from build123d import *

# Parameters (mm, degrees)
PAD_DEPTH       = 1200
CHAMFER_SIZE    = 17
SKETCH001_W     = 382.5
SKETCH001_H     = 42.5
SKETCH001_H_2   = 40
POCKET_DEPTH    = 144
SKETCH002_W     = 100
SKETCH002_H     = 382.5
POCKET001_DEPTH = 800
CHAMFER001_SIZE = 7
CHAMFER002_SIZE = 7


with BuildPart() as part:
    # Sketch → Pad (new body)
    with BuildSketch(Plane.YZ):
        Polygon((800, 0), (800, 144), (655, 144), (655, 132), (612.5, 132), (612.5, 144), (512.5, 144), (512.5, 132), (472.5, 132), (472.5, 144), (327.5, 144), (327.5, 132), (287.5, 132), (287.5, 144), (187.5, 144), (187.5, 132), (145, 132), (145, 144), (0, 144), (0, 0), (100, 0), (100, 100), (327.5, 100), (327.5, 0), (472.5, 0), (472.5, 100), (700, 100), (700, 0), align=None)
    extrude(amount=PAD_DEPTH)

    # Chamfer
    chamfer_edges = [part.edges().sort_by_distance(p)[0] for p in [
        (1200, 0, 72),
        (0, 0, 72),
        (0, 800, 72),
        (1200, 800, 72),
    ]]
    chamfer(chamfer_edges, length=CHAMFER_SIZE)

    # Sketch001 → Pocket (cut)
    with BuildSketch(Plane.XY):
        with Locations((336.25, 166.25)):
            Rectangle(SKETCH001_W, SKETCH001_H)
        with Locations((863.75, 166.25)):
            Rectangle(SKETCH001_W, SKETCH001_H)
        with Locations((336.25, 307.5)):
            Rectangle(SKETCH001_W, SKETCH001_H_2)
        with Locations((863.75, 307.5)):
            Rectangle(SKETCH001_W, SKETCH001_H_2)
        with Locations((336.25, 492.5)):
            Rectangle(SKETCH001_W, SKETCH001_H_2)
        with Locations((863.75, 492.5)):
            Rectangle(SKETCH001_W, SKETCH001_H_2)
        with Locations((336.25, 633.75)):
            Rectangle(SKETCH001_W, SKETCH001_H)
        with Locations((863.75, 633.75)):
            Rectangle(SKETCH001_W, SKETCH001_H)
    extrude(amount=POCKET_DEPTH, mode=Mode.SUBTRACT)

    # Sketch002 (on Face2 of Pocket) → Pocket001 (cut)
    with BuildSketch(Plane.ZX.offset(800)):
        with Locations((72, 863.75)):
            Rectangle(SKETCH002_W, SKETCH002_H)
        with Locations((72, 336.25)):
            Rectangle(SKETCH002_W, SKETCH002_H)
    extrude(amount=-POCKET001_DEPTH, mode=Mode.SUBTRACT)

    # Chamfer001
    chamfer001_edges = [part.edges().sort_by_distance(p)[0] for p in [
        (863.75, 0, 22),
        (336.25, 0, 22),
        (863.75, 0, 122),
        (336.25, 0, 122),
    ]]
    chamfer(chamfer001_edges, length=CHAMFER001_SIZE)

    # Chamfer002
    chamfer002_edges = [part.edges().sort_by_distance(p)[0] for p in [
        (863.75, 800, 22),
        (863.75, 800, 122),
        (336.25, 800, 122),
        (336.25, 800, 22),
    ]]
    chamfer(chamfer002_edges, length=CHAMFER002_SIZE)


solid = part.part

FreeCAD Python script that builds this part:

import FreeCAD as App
import Part
import Sketcher
Q = App.Units.Quantity


def edges_at(feature, points):
    """Names of the edges that pass closest to the given points."""
    edges = feature.Shape.Edges
    near = lambda p: min(range(len(edges)), key=lambda i: edges[i].distToShape(Part.Vertex(*p))[0])
    return sorted({f"Edge{near(p) + 1}" for p in points})

doc = App.newDocument("Part")
body = doc.addObject("PartDesign::Body", "Body")

# Sketch on YZ plane
sketch1 = body.newObject("Sketcher::SketchObject", "Sketch")
sketch1.AttachmentSupport = (doc.getObject("YZ_Plane"), [""])
sketch1.MapMode = "FlatFace"
sketch1.addGeometry([
    Part.LineSegment(App.Vector(800, 0, 0), App.Vector(800, 144, 0)),  # 0
    Part.LineSegment(App.Vector(800, 144, 0), App.Vector(655, 144, 0)),  # 1
    Part.LineSegment(App.Vector(655, 144, 0), App.Vector(655, 132, 0)),  # 2
    Part.LineSegment(App.Vector(655, 132, 0), App.Vector(612, 132, 0)),  # 3
    Part.LineSegment(App.Vector(612, 132, 0), App.Vector(612, 144, 0)),  # 4
    Part.LineSegment(App.Vector(612, 144, 0), App.Vector(512, 144, 0)),  # 5
    Part.LineSegment(App.Vector(512, 144, 0), App.Vector(512, 132, 0)),  # 6
    Part.LineSegment(App.Vector(512, 132, 0), App.Vector(472, 132, 0)),  # 7
    Part.LineSegment(App.Vector(472, 132, 0), App.Vector(472, 144, 0)),  # 8
    Part.LineSegment(App.Vector(472, 144, 0), App.Vector(328, 144, 0)),  # 9
    Part.LineSegment(App.Vector(328, 144, 0), App.Vector(328, 132, 0)),  # 10
    Part.LineSegment(App.Vector(328, 132, 0), App.Vector(288, 132, 0)),  # 11
    Part.LineSegment(App.Vector(288, 132, 0), App.Vector(288, 144, 0)),  # 12
    Part.LineSegment(App.Vector(288, 144, 0), App.Vector(188, 144, 0)),  # 13
    Part.LineSegment(App.Vector(188, 144, 0), App.Vector(188, 132, 0)),  # 14
    Part.LineSegment(App.Vector(188, 132, 0), App.Vector(145, 132, 0)),  # 15
    Part.LineSegment(App.Vector(145, 132, 0), App.Vector(145, 144, 0)),  # 16
    Part.LineSegment(App.Vector(145, 144, 0), App.Vector(0, 144, 0)),  # 17
    Part.LineSegment(App.Vector(0, 144, 0), App.Vector(0, 0, 0)),  # 18
    Part.LineSegment(App.Vector(0, 0, 0), App.Vector(100, 0, 0)),  # 19
    Part.LineSegment(App.Vector(100, 0, 0), App.Vector(100, 100, 0)),  # 20
    Part.LineSegment(App.Vector(100, 100, 0), App.Vector(328, 100, 0)),  # 21
    Part.LineSegment(App.Vector(328, 100, 0), App.Vector(328, 0, 0)),  # 22
    Part.LineSegment(App.Vector(328, 0, 0), App.Vector(472, 0, 0)),  # 23
    Part.LineSegment(App.Vector(472, 0, 0), App.Vector(472, 100, 0)),  # 24
    Part.LineSegment(App.Vector(472, 100, 0), App.Vector(700, 100, 0)),  # 25
    Part.LineSegment(App.Vector(700, 100, 0), App.Vector(700, 0, 0)),  # 26
    Part.LineSegment(App.Vector(700, 0, 0), App.Vector(800, 0, 0)),  # 27
], False)
sketch1.addConstraint([
    Sketcher.Constraint("Coincident", 0, 2, 1, 1),
    Sketcher.Constraint("Coincident", 1, 2, 2, 1),
    Sketcher.Constraint("Coincident", 2, 2, 3, 1),
    Sketcher.Constraint("Coincident", 3, 2, 4, 1),
    Sketcher.Constraint("Coincident", 4, 2, 5, 1),
    Sketcher.Constraint("Coincident", 5, 2, 6, 1),
    Sketcher.Constraint("Coincident", 6, 2, 7, 1),
    Sketcher.Constraint("Coincident", 7, 2, 8, 1),
    Sketcher.Constraint("Coincident", 8, 2, 9, 1),
    Sketcher.Constraint("Coincident", 9, 2, 10, 1),
    Sketcher.Constraint("Coincident", 10, 2, 11, 1),
    Sketcher.Constraint("Coincident", 11, 2, 12, 1),
    Sketcher.Constraint("Coincident", 12, 2, 13, 1),
    Sketcher.Constraint("Coincident", 13, 2, 14, 1),
    Sketcher.Constraint("Coincident", 14, 2, 15, 1),
    Sketcher.Constraint("Coincident", 15, 2, 16, 1),
    Sketcher.Constraint("Coincident", 16, 2, 17, 1),
    Sketcher.Constraint("Coincident", 17, 2, 18, 1),
    Sketcher.Constraint("Coincident", 18, 2, 19, 1),
    Sketcher.Constraint("Coincident", 19, 2, 20, 1),
    Sketcher.Constraint("Coincident", 20, 2, 21, 1),
    Sketcher.Constraint("Coincident", 21, 2, 22, 1),
    Sketcher.Constraint("Coincident", 22, 2, 23, 1),
    Sketcher.Constraint("Coincident", 23, 2, 24, 1),
    Sketcher.Constraint("Coincident", 24, 2, 25, 1),
    Sketcher.Constraint("Coincident", 25, 2, 26, 1),
    Sketcher.Constraint("Coincident", 26, 2, 27, 1),
    Sketcher.Constraint("Coincident", 27, 2, 0, 1),
    Sketcher.Constraint("Vertical", 0),
    Sketcher.Constraint("Horizontal", 1),
    Sketcher.Constraint("Vertical", 2),
    Sketcher.Constraint("Horizontal", 3),
    Sketcher.Constraint("Vertical", 4),
    Sketcher.Constraint("Horizontal", 5),
    Sketcher.Constraint("Vertical", 6),
    Sketcher.Constraint("Horizontal", 7),
    Sketcher.Constraint("Vertical", 8),
    Sketcher.Constraint("Horizontal", 9),
    Sketcher.Constraint("Vertical", 10),
    Sketcher.Constraint("Horizontal", 11),
    Sketcher.Constraint("Vertical", 12),
    Sketcher.Constraint("Horizontal", 13),
    Sketcher.Constraint("Vertical", 14),
    Sketcher.Constraint("Horizontal", 15),
    Sketcher.Constraint("Vertical", 16),
    Sketcher.Constraint("Horizontal", 17),
    Sketcher.Constraint("Vertical", 18),
    Sketcher.Constraint("Horizontal", 19),
    Sketcher.Constraint("Vertical", 20),
    Sketcher.Constraint("Horizontal", 21),
    Sketcher.Constraint("Vertical", 22),
    Sketcher.Constraint("Horizontal", 23),
    Sketcher.Constraint("Vertical", 24),
    Sketcher.Constraint("Horizontal", 25),
    Sketcher.Constraint("Vertical", 26),
    Sketcher.Constraint("Horizontal", 27),
    Sketcher.Constraint("Coincident", 18, 2, -1, 1),
    Sketcher.Constraint("PointOnObject", 22, 2, -1),
    Sketcher.Constraint("PointOnObject", 26, 2, -1),
    Sketcher.Constraint("Horizontal", 1, 2, 4, 2),
    Sketcher.Constraint("Horizontal", 3, 2, 6, 2),
    Sketcher.Constraint("Horizontal", 5, 2, 8, 2),
    Sketcher.Constraint("Horizontal", 7, 2, 10, 2),
    Sketcher.Constraint("Horizontal", 9, 2, 12, 2),
    Sketcher.Constraint("Horizontal", 11, 2, 14, 2),
    Sketcher.Constraint("Horizontal", 13, 2, 16, 2),
    Sketcher.Constraint("Horizontal", 21, 2, 24, 2),
    Sketcher.Constraint("Vertical", 10, 2, 21, 2),
    Sketcher.Constraint("Vertical", 8, 2, 23, 2),
    Sketcher.Constraint("Equal", 1, 9),
    Sketcher.Constraint("Equal", 7, 11),
    Sketcher.Constraint("Equal", 5, 13),
    Sketcher.Constraint("Equal", 3, 15),
    Sketcher.Constraint("Equal", 9, 17),
    Sketcher.Constraint("Equal", 13, 19),
    Sketcher.Constraint("Equal", 21, 25),
    Sketcher.Constraint("Equal", 27, 20),
    Sketcher.Constraint("DistanceX", 1, 2, 1, 1, Q("145 mm")),
    Sketcher.Constraint("DistanceX", 5, 2, 5, 1, Q("100 mm")),
    Sketcher.Constraint("DistanceX", 7, 2, 7, 1, Q("40 mm")),
    Sketcher.Constraint("DistanceY", 0, 1, 0, 2, Q("144 mm")),
    Sketcher.Constraint("DistanceY", 2, 2, 2, 1, Q("12 mm")),
    Sketcher.Constraint("DistanceX", 3, 2, 3, 1, Q("42.5 mm")),
])
pad1 = body.newObject("PartDesign::Pad", "Pad")
pad1.Profile = sketch1
pad1.Length = 1200
doc.recompute()

chamfer = body.newObject("PartDesign::Chamfer", "Chamfer")
chamfer.Base = (pad1, edges_at(pad1, [
    (1200, 0, 72),
    (0, 0, 72),
    (0, 800, 72),
    (1200, 800, 72),
]))
chamfer.Size = 17

# Sketch on XY plane
sketch2 = body.newObject("Sketcher::SketchObject", "Sketch001")
sketch2.AttachmentSupport = (doc.getObject("XY_Plane"), [""])
sketch2.MapMode = "FlatFace"
sketch2.addGeometry([
    Part.LineSegment(App.Vector(145, 188, 0), App.Vector(145, 145, 0)),  # 0
    Part.LineSegment(App.Vector(145, 145, 0), App.Vector(528, 145, 0)),  # 1
    Part.LineSegment(App.Vector(528, 145, 0), App.Vector(528, 188, 0)),  # 2
    Part.LineSegment(App.Vector(528, 188, 0), App.Vector(145, 188, 0)),  # 3
    Part.LineSegment(App.Vector(672, 188, 0), App.Vector(672, 145, 0)),  # 4
    Part.LineSegment(App.Vector(672, 145, 0), App.Vector(1055, 145, 0)),  # 5
    Part.LineSegment(App.Vector(1055, 145, 0), App.Vector(1055, 188, 0)),  # 6
    Part.LineSegment(App.Vector(1055, 188, 0), App.Vector(672, 188, 0)),  # 7
    Part.LineSegment(App.Vector(145, 328, 0), App.Vector(145, 288, 0)),  # 8
    Part.LineSegment(App.Vector(145, 288, 0), App.Vector(528, 288, 0)),  # 9
    Part.LineSegment(App.Vector(528, 288, 0), App.Vector(528, 328, 0)),  # 10
    Part.LineSegment(App.Vector(528, 328, 0), App.Vector(145, 328, 0)),  # 11
    Part.LineSegment(App.Vector(672, 328, 0), App.Vector(672, 288, 0)),  # 12
    Part.LineSegment(App.Vector(672, 288, 0), App.Vector(1055, 288, 0)),  # 13
    Part.LineSegment(App.Vector(1055, 288, 0), App.Vector(1055, 328, 0)),  # 14
    Part.LineSegment(App.Vector(1055, 328, 0), App.Vector(672, 328, 0)),  # 15
    Part.LineSegment(App.Vector(145, 512, 0), App.Vector(145, 472, 0)),  # 16
    Part.LineSegment(App.Vector(145, 472, 0), App.Vector(528, 472, 0)),  # 17
    Part.LineSegment(App.Vector(528, 472, 0), App.Vector(528, 512, 0)),  # 18
    Part.LineSegment(App.Vector(528, 512, 0), App.Vector(145, 512, 0)),  # 19
    Part.LineSegment(App.Vector(672, 512, 0), App.Vector(672, 472, 0)),  # 20
    Part.LineSegment(App.Vector(672, 472, 0), App.Vector(1055, 472, 0)),  # 21
    Part.LineSegment(App.Vector(1055, 472, 0), App.Vector(1055, 512, 0)),  # 22
    Part.LineSegment(App.Vector(1055, 512, 0), App.Vector(672, 512, 0)),  # 23
    Part.LineSegment(App.Vector(145, 655, 0), App.Vector(145, 612, 0)),  # 24
    Part.LineSegment(App.Vector(145, 612, 0), App.Vector(528, 612, 0)),  # 25
    Part.LineSegment(App.Vector(528, 612, 0), App.Vector(528, 655, 0)),  # 26
    Part.LineSegment(App.Vector(528, 655, 0), App.Vector(145, 655, 0)),  # 27
    Part.LineSegment(App.Vector(672, 655, 0), App.Vector(672, 612, 0)),  # 28
    Part.LineSegment(App.Vector(672, 612, 0), App.Vector(1055, 612, 0)),  # 29
    Part.LineSegment(App.Vector(1055, 612, 0), App.Vector(1055, 655, 0)),  # 30
    Part.LineSegment(App.Vector(1055, 655, 0), App.Vector(672, 655, 0)),  # 31
], False)
sketch2.addConstraint([
    Sketcher.Constraint("Coincident", 0, 2, 1, 1),
    Sketcher.Constraint("Coincident", 1, 2, 2, 1),
    Sketcher.Constraint("Coincident", 2, 2, 3, 1),
    Sketcher.Constraint("Coincident", 3, 2, 0, 1),
    Sketcher.Constraint("Coincident", 4, 2, 5, 1),
    Sketcher.Constraint("Coincident", 5, 2, 6, 1),
    Sketcher.Constraint("Coincident", 6, 2, 7, 1),
    Sketcher.Constraint("Coincident", 7, 2, 4, 1),
    Sketcher.Constraint("Coincident", 8, 2, 9, 1),
    Sketcher.Constraint("Coincident", 9, 2, 10, 1),
    Sketcher.Constraint("Coincident", 10, 2, 11, 1),
    Sketcher.Constraint("Coincident", 11, 2, 8, 1),
    Sketcher.Constraint("Coincident", 12, 2, 13, 1),
    Sketcher.Constraint("Coincident", 13, 2, 14, 1),
    Sketcher.Constraint("Coincident", 14, 2, 15, 1),
    Sketcher.Constraint("Coincident", 15, 2, 12, 1),
    Sketcher.Constraint("Coincident", 16, 2, 17, 1),
    Sketcher.Constraint("Coincident", 17, 2, 18, 1),
    Sketcher.Constraint("Coincident", 18, 2, 19, 1),
    Sketcher.Constraint("Coincident", 19, 2, 16, 1),
    Sketcher.Constraint("Coincident", 20, 2, 21, 1),
    Sketcher.Constraint("Coincident", 21, 2, 22, 1),
    Sketcher.Constraint("Coincident", 22, 2, 23, 1),
    Sketcher.Constraint("Coincident", 23, 2, 20, 1),
    Sketcher.Constraint("Coincident", 24, 2, 25, 1),
    Sketcher.Constraint("Coincident", 25, 2, 26, 1),
    Sketcher.Constraint("Coincident", 26, 2, 27, 1),
    Sketcher.Constraint("Coincident", 27, 2, 24, 1),
    Sketcher.Constraint("Coincident", 28, 2, 29, 1),
    Sketcher.Constraint("Coincident", 29, 2, 30, 1),
    Sketcher.Constraint("Coincident", 30, 2, 31, 1),
    Sketcher.Constraint("Coincident", 31, 2, 28, 1),
    Sketcher.Constraint("Vertical", 0),
    Sketcher.Constraint("Horizontal", 1),
    Sketcher.Constraint("Vertical", 2),
    Sketcher.Constraint("Horizontal", 3),
    Sketcher.Constraint("Vertical", 4),
    Sketcher.Constraint("Horizontal", 5),
    Sketcher.Constraint("Vertical", 6),
    Sketcher.Constraint("Horizontal", 7),
    Sketcher.Constraint("Vertical", 8),
    Sketcher.Constraint("Horizontal", 9),
    Sketcher.Constraint("Vertical", 10),
    Sketcher.Constraint("Horizontal", 11),
    Sketcher.Constraint("Vertical", 12),
    Sketcher.Constraint("Horizontal", 13),
    Sketcher.Constraint("Vertical", 14),
    Sketcher.Constraint("Horizontal", 15),
    Sketcher.Constraint("Vertical", 16),
    Sketcher.Constraint("Horizontal", 17),
    Sketcher.Constraint("Vertical", 18),
    Sketcher.Constraint("Horizontal", 19),
    Sketcher.Constraint("Vertical", 20),
    Sketcher.Constraint("Horizontal", 21),
    Sketcher.Constraint("Vertical", 22),
    Sketcher.Constraint("Horizontal", 23),
    Sketcher.Constraint("Vertical", 24),
    Sketcher.Constraint("Horizontal", 25),
    Sketcher.Constraint("Vertical", 26),
    Sketcher.Constraint("Horizontal", 27),
    Sketcher.Constraint("Vertical", 28),
    Sketcher.Constraint("Horizontal", 29),
    Sketcher.Constraint("Vertical", 30),
    Sketcher.Constraint("Horizontal", 31),
    Sketcher.Constraint("Horizontal", 1, 2, 4, 2),
    Sketcher.Constraint("Horizontal", 3, 2, 6, 2),
    Sketcher.Constraint("Horizontal", 9, 2, 12, 2),
    Sketcher.Constraint("Horizontal", 11, 2, 14, 2),
    Sketcher.Constraint("Horizontal", 17, 2, 20, 2),
    Sketcher.Constraint("Horizontal", 19, 2, 22, 2),
    Sketcher.Constraint("Horizontal", 25, 2, 28, 2),
    Sketcher.Constraint("Horizontal", 27, 2, 30, 2),
    Sketcher.Constraint("Vertical", 3, 2, 8, 2),
    Sketcher.Constraint("Vertical", 2, 2, 9, 2),
    Sketcher.Constraint("Vertical", 7, 2, 12, 2),
    Sketcher.Constraint("Vertical", 6, 2, 13, 2),
    Sketcher.Constraint("Vertical", 11, 2, 16, 2),
    Sketcher.Constraint("Vertical", 10, 2, 17, 2),
    Sketcher.Constraint("Vertical", 15, 2, 20, 2),
    Sketcher.Constraint("Vertical", 14, 2, 21, 2),
    Sketcher.Constraint("Vertical", 19, 2, 24, 2),
    Sketcher.Constraint("Vertical", 18, 2, 25, 2),
    Sketcher.Constraint("Vertical", 23, 2, 28, 2),
    Sketcher.Constraint("Vertical", 22, 2, 29, 2),
    Sketcher.Constraint("Equal", 3, 5),
    Sketcher.Constraint("Equal", 14, 16),
    Sketcher.Constraint("Equal", 6, 24),
    Sketcher.Constraint("DistanceY", 8, 2, 8, 1, Q("40 mm")),
    Sketcher.Constraint("DistanceX", 1, 1, 1, 2, Q("382.5 mm")),
    Sketcher.Constraint("DistanceY", 0, 2, 0, 1, Q("42.5 mm")),
    Sketcher.Constraint("DistanceX", -1, 1, 0, 2, Q("145 mm")),
    Sketcher.Constraint("DistanceY", -1, 1, 0, 2, Q("145 mm")),
    Sketcher.Constraint("DistanceX", -1, 1, 5, 2, Q("1055 mm")),
    Sketcher.Constraint("DistanceY", -1, 1, 26, 2, Q("655 mm")),
    Sketcher.Constraint("DistanceY", 3, 2, 8, 2, Q("100 mm")),
    Sketcher.Constraint("DistanceY", 11, 2, 16, 2, Q("145 mm")),
])
pocket1 = body.newObject("PartDesign::Pocket", "Pocket")
pocket1.Profile = sketch2
pocket1.Length = 144
pocket1.Reversed = True

# Sketch on XZ plane
sketch3 = body.newObject("Sketcher::SketchObject", "Sketch002")
sketch3.AttachmentSupport = (doc.getObject("XZ_Plane"), [""])
sketch3.MapMode = "FlatFace"
sketch3.AttachmentOffset = App.Placement(App.Vector(0, 0, -800), App.Rotation())
sketch3.addGeometry([
    Part.LineSegment(App.Vector(1055, 22, 0), App.Vector(672, 22, 0)),  # 0
    Part.LineSegment(App.Vector(672, 22, 0), App.Vector(672, 122, 0)),  # 1
    Part.LineSegment(App.Vector(672, 122, 0), App.Vector(1055, 122, 0)),  # 2
    Part.LineSegment(App.Vector(1055, 122, 0), App.Vector(1055, 22, 0)),  # 3
    Part.LineSegment(App.Vector(528, 22, 0), App.Vector(145, 22, 0)),  # 4
    Part.LineSegment(App.Vector(145, 22, 0), App.Vector(145, 122, 0)),  # 5
    Part.LineSegment(App.Vector(145, 122, 0), App.Vector(528, 122, 0)),  # 6
    Part.LineSegment(App.Vector(528, 122, 0), App.Vector(528, 22, 0)),  # 7
], False)
sketch3.addConstraint([
    Sketcher.Constraint("Coincident", 0, 2, 1, 1),
    Sketcher.Constraint("Coincident", 1, 2, 2, 1),
    Sketcher.Constraint("Coincident", 2, 2, 3, 1),
    Sketcher.Constraint("Coincident", 3, 2, 0, 1),
    Sketcher.Constraint("Coincident", 4, 2, 5, 1),
    Sketcher.Constraint("Coincident", 5, 2, 6, 1),
    Sketcher.Constraint("Coincident", 6, 2, 7, 1),
    Sketcher.Constraint("Coincident", 7, 2, 4, 1),
    Sketcher.Constraint("Horizontal", 0),
    Sketcher.Constraint("Vertical", 1),
    Sketcher.Constraint("Horizontal", 2),
    Sketcher.Constraint("Vertical", 3),
    Sketcher.Constraint("Horizontal", 4),
    Sketcher.Constraint("Vertical", 5),
    Sketcher.Constraint("Horizontal", 6),
    Sketcher.Constraint("Vertical", 7),
    Sketcher.Constraint("Horizontal", 3, 2, 4, 2),
    Sketcher.Constraint("Horizontal", 2, 2, 5, 2),
    Sketcher.Constraint("Equal", 2, 4),
    Sketcher.Constraint("DistanceY", 1, 1, 1, 2, Q("100 mm")),
    Sketcher.Constraint("DistanceX", 0, 2, 0, 1, Q("382.5 mm")),
    Sketcher.Constraint("DistanceY", -1, 1, 0, 2, Q("22 mm")),
    Sketcher.Constraint("DistanceX", -1, 1, 2, 2, Q("1055 mm")),
    Sketcher.Constraint("DistanceX", -1, 1, 4, 2, Q("145 mm")),
])
pocket2 = body.newObject("PartDesign::Pocket", "Pocket001")
pocket2.Profile = sketch3
pocket2.Length = 800
pocket2.Reversed = True
doc.recompute()

chamfer2 = body.newObject("PartDesign::Chamfer", "Chamfer001")
chamfer2.Base = (pocket2, edges_at(pocket2, [
    (863.75, 0, 22),
    (336.25, 0, 22),
    (863.75, 0, 122),
    (336.25, 0, 122),
]))
chamfer2.Size = 7
doc.recompute()

chamfer3 = body.newObject("PartDesign::Chamfer", "Chamfer002")
chamfer3.Base = (chamfer2, edges_at(chamfer2, [
    (863.75, 800, 22),
    (863.75, 800, 122),
    (336.25, 800, 122),
    (336.25, 800, 22),
]))
chamfer3.Size = 7

doc.recompute()
